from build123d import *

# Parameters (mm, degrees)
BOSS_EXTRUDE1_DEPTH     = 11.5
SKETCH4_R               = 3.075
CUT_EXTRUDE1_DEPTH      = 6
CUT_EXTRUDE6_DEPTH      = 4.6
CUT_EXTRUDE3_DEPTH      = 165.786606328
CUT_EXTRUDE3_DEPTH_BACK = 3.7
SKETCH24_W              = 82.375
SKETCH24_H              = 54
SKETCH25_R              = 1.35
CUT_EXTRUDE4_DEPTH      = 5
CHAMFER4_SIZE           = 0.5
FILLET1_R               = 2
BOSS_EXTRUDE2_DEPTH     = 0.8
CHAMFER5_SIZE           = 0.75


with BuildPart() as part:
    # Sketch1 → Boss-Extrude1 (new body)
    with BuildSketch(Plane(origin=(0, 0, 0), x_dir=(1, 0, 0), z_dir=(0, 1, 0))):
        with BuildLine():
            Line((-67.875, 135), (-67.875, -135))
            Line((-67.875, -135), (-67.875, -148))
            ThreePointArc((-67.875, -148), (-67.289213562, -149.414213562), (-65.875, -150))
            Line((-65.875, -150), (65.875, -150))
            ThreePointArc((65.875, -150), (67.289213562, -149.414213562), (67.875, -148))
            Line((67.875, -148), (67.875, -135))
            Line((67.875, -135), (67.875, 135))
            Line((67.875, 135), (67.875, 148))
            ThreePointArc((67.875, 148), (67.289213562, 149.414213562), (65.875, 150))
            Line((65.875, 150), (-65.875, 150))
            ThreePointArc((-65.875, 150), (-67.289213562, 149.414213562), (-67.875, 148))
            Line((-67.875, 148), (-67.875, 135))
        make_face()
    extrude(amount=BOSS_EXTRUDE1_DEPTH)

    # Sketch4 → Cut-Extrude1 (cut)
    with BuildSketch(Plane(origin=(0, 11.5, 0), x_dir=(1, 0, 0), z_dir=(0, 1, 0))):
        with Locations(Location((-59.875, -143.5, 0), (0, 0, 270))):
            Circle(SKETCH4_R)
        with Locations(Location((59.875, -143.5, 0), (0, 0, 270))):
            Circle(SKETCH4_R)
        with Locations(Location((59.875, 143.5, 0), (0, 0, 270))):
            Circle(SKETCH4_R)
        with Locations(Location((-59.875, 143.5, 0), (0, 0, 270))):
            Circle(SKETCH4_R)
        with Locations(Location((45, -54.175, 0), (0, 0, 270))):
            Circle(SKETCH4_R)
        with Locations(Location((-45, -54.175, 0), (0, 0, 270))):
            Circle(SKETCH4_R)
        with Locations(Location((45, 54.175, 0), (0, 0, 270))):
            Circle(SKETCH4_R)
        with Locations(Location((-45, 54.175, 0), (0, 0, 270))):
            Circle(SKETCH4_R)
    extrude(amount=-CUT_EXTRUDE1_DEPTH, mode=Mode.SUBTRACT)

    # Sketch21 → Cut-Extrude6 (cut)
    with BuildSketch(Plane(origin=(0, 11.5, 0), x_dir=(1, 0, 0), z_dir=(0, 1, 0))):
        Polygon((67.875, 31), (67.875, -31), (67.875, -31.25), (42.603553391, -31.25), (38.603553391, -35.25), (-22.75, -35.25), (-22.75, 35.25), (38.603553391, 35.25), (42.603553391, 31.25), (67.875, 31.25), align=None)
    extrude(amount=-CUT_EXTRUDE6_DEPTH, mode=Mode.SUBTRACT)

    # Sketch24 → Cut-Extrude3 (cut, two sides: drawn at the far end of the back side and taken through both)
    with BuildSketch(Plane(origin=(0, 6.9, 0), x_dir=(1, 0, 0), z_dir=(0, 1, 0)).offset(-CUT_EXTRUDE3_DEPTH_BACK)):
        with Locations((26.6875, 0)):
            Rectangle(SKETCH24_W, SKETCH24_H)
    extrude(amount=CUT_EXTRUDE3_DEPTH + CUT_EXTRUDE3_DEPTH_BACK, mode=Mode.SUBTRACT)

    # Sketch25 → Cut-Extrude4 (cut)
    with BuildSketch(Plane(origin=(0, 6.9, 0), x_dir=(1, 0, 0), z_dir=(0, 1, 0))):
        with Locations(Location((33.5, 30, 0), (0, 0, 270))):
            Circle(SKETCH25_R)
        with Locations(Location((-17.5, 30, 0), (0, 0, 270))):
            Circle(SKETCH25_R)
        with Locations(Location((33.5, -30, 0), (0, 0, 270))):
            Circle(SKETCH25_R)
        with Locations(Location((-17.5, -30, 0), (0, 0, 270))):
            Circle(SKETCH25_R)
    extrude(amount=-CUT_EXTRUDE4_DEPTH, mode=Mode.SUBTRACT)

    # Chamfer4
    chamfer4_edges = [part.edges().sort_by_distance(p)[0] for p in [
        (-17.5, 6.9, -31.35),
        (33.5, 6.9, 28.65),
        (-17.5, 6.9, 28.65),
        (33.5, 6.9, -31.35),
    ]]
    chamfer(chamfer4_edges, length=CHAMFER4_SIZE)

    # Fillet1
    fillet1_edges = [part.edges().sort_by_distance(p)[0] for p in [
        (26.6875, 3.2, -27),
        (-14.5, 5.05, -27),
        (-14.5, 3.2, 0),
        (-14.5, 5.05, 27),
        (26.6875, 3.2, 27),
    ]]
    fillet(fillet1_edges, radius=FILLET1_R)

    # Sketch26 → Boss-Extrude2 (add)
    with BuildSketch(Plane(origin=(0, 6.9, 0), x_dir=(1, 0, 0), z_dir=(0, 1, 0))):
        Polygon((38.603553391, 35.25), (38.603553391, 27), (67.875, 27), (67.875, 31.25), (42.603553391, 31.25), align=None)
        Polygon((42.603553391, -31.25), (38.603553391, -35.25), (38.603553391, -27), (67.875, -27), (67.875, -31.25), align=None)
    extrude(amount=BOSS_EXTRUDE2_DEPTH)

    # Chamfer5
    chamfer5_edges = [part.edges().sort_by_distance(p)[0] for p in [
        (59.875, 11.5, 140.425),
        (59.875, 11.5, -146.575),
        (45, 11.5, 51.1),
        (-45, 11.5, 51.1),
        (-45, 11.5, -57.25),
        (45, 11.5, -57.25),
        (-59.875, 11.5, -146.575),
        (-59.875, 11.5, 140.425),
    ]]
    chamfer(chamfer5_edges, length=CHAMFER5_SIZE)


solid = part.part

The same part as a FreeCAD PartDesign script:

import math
import FreeCAD as App
import Part
import Sketcher

V = App.Vector


def edges_at(feature, points):
    """Names of the edges that pass closest to the given points."""
    edges = feature.Shape.Edges
    near = lambda p: min(range(len(edges)), key=lambda i: edges[i].distToShape(Part.Vertex(*p))[0])
    return sorted({f"Edge{near(p) + 1}" for p in points})


def add_polygon(sketch, points):
    """Adds a closed chain of lines whose ends are joined by coincident constraints."""
    first, n = sketch.GeometryCount, len(points)
    for a, b in zip(points, points[1:] + points[:1]):
        sketch.addGeometry(Part.LineSegment(App.Vector(*a, 0), App.Vector(*b, 0)), False)
    for i in range(n):
        sketch.addConstraint(Sketcher.Constraint("Coincident", first + i, 2, first + (i + 1) % n, 1))

doc = App.newDocument("Part")
params = doc.addObject("Spreadsheet::Sheet", "Params")
for row, (alias, value) in enumerate([
    ("sketch1_radius", "2 mm"),
    ("sketch1_height", "296 mm"),
    ("sketch1_width", "131.75 mm"),
    ("pad1_length", "11.5 mm"),
    ("sketch2_diameter", "6.15 mm"),
    ("pocket1_length", "6 mm"),
    ("sketch3_height", "62.5 mm"),
    ("sketch3_height2", "70.5 mm"),
    ("pocket2_length", "4.6 mm"),
    ("sketch4_height", "54 mm"),
    ("pocket3_length", "165.786606 mm"),
    ("pocket3_length2", "3.7 mm"),
    ("sketch5_diameter", "2.7 mm"),
    ("pocket4_length", "5 mm"),
    ("chamfer_size", "0.5 mm"),
    ("fillet_radius", "2 mm"),
    ("sketch6_height", "8.25 mm"),
    ("pad2_length", "0.8 mm"),
    ("chamfer2_size", "0.75 mm"),
], start=1):
    params.set(f"A{row}", alias)
    params.set(f"B{row}", "=" + value)
    params.setAlias(f"B{row}", alias)

body = doc.addObject("PartDesign::Body", "Body")

sketch1 = body.newObject("Sketcher::SketchObject", "Sketch")
sketch1.AttachmentSupport = (doc.getObject("XZ_Plane"), [""])
sketch1.MapMode = "FlatFace"
sketch1.addGeometry([
    Part.ArcOfCircle(Part.Circle(V(-65.9, 148, 0), V(0, 0, 1), 2), math.radians(90), math.radians(180)),
    Part.LineSegment(V(-65.9, 150, 0), V(65.9, 150, 0)),
    Part.ArcOfCircle(Part.Circle(V(65.9, 148, 0), V(0, 0, 1), 2), math.radians(0), math.radians(90)),
    Part.LineSegment(V(67.9, 148, 0), V(67.9, -148, 0)),
    Part.ArcOfCircle(Part.Circle(V(65.9, -148, 0), V(0, 0, 1), 2), math.radians(-90), math.radians(0)),
    Part.LineSegment(V(65.9, -150, 0), V(-65.9, -150, 0)),
    Part.ArcOfCircle(Part.Circle(V(-65.9, -148, 0), V(0, 0, 1), 2), math.radians(-180), math.radians(-90)),
    Part.LineSegment(V(-67.9, -148, 0), V(-67.9, 148, 0)),
], False)
sketch1.addConstraint([
    Sketcher.Constraint("Tangent", 0, 1, 1, 1),
    Sketcher.Constraint("Tangent", 1, 2, 2, 2),
    Sketcher.Constraint("Tangent", 2, 1, 3, 1),
    Sketcher.Constraint("Tangent", 3, 2, 4, 2),
    Sketcher.Constraint("Tangent", 4, 1, 5, 1),
    Sketcher.Constraint("Tangent", 5, 2, 6, 2),
    Sketcher.Constraint("Tangent", 6, 1, 7, 1),
    Sketcher.Constraint("Tangent", 7, 2, 0, 2),
    Sketcher.Constraint("Horizontal", 1),
    Sketcher.Constraint("Vertical", 3),
    Sketcher.Constraint("Horizontal", 5),
    Sketcher.Constraint("Vertical", 7),
    Sketcher.Constraint("Equal", 0, 2),
    Sketcher.Constraint("Equal", 2, 4),
    Sketcher.Constraint("Equal", 4, 6),
    Sketcher.Constraint("Symmetric", 0, 3, 4, 3, -1, 1),
    Sketcher.Constraint("Radius", 0, 2.0),
    Sketcher.Constraint("DistanceY", 3, 2, 3, 1, 296.0),
    Sketcher.Constraint("DistanceX", 1, 1, 1, 2, 131.75),
])
sketch1.setExpression("Constraints[16]", "Params.sketch1_radius")
sketch1.setExpression("Constraints[17]", "Params.sketch1_height")
sketch1.setExpression("Constraints[18]", "Params.sketch1_width")
pad1 = body.newObject("PartDesign::Pad", "Pad")
pad1.Profile = sketch1
pad1.setExpression("Length", "Params.pad1_length")
pad1.Reversed = True

sketch2 = body.newObject("Sketcher::SketchObject", "Sketch001")
sketch2.AttachmentSupport = (doc.getObject("XZ_Plane"), [""])
sketch2.MapMode = "FlatFace"
sketch2.AttachmentOffset = App.Placement(V(0, 0, -11.5), App.Rotation())
sketch2.addGeometry([
    Part.Circle(V(-59.9, 143.5, 0), V(0, 0, 1), 3.1),
    Part.Circle(V(59.9, 143.5, 0), V(0, 0, 1), 3.1),
    Part.Circle(V(59.9, -143.5, 0), V(0, 0, 1), 3.1),
    Part.Circle(V(-59.9, -143.5, 0), V(0, 0, 1), 3.1),
    Part.Circle(V(45, 54.2, 0), V(0, 0, 1), 3.1),
    Part.Circle(V(-45, 54.2, 0), V(0, 0, 1), 3.1),
    Part.Circle(V(45, -54.2, 0), V(0, 0, 1), 3.1),
    Part.Circle(V(-45, -54.2, 0), V(0, 0, 1), 3.1),
], False)
sketch2.addConstraint([
    Sketcher.Constraint("Equal", 0, 1),
    Sketcher.Constraint("Equal", 1, 2),
    Sketcher.Constraint("Equal", 2, 3),
    Sketcher.Constraint("Equal", 3, 4),
    Sketcher.Constraint("Equal", 4, 5),
    Sketcher.Constraint("Equal", 5, 6),
    Sketcher.Constraint("Equal", 6, 7),
    Sketcher.Constraint("Symmetric", 0, 3, 2, 3, -1, 1),
    Sketcher.Constraint("Symmetric", 1, 3, 3, 3, -1, 1),
    Sketcher.Constraint("Symmetric", 5, 3, 6, 3, -1, 1),
    Sketcher.Constraint("Symmetric", 4, 3, 7, 3, -1, 1),
    Sketcher.Constraint("Symmetric", 0, 3, 1, 3, -2),
    Sketcher.Constraint("Symmetric", 4, 3, 5, 3, -2),
    Sketcher.Constraint("Diameter", 0, 6.15),
    Sketcher.Constraint("DistanceX", -1, 1, 4, 3, 45.0),
    Sketcher.Constraint("DistanceY", 2, 3, 1, 3, 287.0),
    Sketcher.Constraint("DistanceX", 0, 3, 1, 3, 119.75),
    Sketcher.Constraint("DistanceY", 6, 3, 4, 3, 108.35),
])
sketch2.setExpression("Constraints[13]", "Params.sketch2_diameter")
pocket1 = body.newObject("PartDesign::Pocket", "Pocket")
pocket1.Profile = sketch2
pocket1.setExpression("Length", "Params.pocket1_length")
pocket1.Reversed = True

sketch3 = body.newObject("Sketcher::SketchObject", "Sketch002")
sketch3.AttachmentSupport = (doc.getObject("XZ_Plane"), [""])
sketch3.MapMode = "FlatFace"
sketch3.AttachmentOffset = App.Placement(V(0, 0, -11.5), App.Rotation())
add_polygon(sketch3, [(68, 31), (68, -31), (43, -31), (39, -35), (-23, -35), (-23, 35), (39, 35), (43, 31)])
sketch3.addConstraint([
    Sketcher.Constraint("Vertical", 0),
    Sketcher.Constraint("Horizontal", 1),
    Sketcher.Constraint("Horizontal", 3),
    Sketcher.Constraint("Vertical", 4),
    Sketcher.Constraint("Horizontal", 5),
    Sketcher.Constraint("Horizontal", 7),
    Sketcher.Constraint("Symmetric", 2, 2, 5, 2, -1),
    Sketcher.Constraint("Symmetric", 1, 2, 6, 2, -1),
    Sketcher.Constraint("Perpendicular", 2, 6),
    Sketcher.Constraint("DistanceY", 0, 2, 0, 1, 62.5),
    Sketcher.Constraint("DistanceY", 4, 1, 4, 2, 70.5),
    Sketcher.Constraint("DistanceX", 3, 2, -1, 1, 22.75),
    Sketcher.Constraint("DistanceX", -1, 1, 0, 2, 67.875),
    Sketcher.Constraint("DistanceX", 1, 2, 1, 1, 25.271447),
])
sketch3.setExpression("Constraints[17]", "Params.sketch3_height")
sketch3.setExpression("Constraints[18]", "Params.sketch3_height2")
pocket2 = body.newObject("PartDesign::Pocket", "Pocket001")
pocket2.Profile = sketch3
pocket2.setExpression("Length", "Params.pocket2_length")
pocket2.Reversed = True

sketch4 = body.newObject("Sketcher::SketchObject", "Sketch003")
sketch4.AttachmentSupport = (doc.getObject("XZ_Plane"), [""])
sketch4.MapMode = "FlatFace"
sketch4.AttachmentOffset = App.Placement(V(0, 0, -6.9), App.Rotation())
add_polygon(sketch4, [(-14, -27), (-14, 27), (68, 27), (68, -27)])
sketch4.addConstraint([
    Sketcher.Constraint("Vertical", 0),
    Sketcher.Constraint("Horizontal", 1),
    Sketcher.Constraint("Vertical", 2),
    Sketcher.Constraint("Horizontal", 3),
    Sketcher.Constraint("DistanceY", 0, 1, 0, 2, 54.0),
    Sketcher.Constraint("DistanceY", -1, 1, 0, 2, 27.0),
    Sketcher.Constraint("DistanceX", 0, 2, -1, 1, 14.5),
    Sketcher.Constraint("DistanceX", 1, 1, 1, 2, 82.375),
])
sketch4.setExpression("Constraints[8]", "Params.sketch4_height")
pocket3 = body.newObject("PartDesign::Pocket", "Pocket002")
pocket3.Profile = sketch4
pocket3.Type = "TwoLengths"
pocket3.setExpression("Length", "Params.pocket3_length")
pocket3.setExpression("Length2", "Params.pocket3_length2")

sketch5 = body.newObject("Sketcher::SketchObject", "Sketch004")
sketch5.AttachmentSupport = (doc.getObject("XZ_Plane"), [""])
sketch5.MapMode = "FlatFace"
sketch5.AttachmentOffset = App.Placement(V(0, 0, -6.9), App.Rotation())
sketch5.addGeometry([
    Part.Circle(V(33.5, -30, 0), V(0, 0, 1), 1.4),
    Part.Circle(V(-17.5, -30, 0), V(0, 0, 1), 1.4),
    Part.Circle(V(33.5, 30, 0), V(0, 0, 1), 1.4),
    Part.Circle(V(-17.5, 30, 0), V(0, 0, 1), 1.4),
], False)
sketch5.addConstraint([
    Sketcher.Constraint("Equal", 0, 1),
    Sketcher.Constraint("Equal", 1, 2),
    Sketcher.Constraint("Equal", 2, 3),
    Sketcher.Constraint("Symmetric", 0, 3, 2, 3, -1),
    Sketcher.Constraint("Symmetric", 1, 3, 3, 3, -1),
    Sketcher.Constraint("Horizontal", 0, 3, 1, 3),
    Sketcher.Constraint("Diameter", 0, 2.7),
    Sketcher.Constraint("DistanceY", 0, 3, -1, 1, 30.0),
    Sketcher.Constraint("DistanceX", 1, 3, 0, 3, 51.0),
    Sketcher.Constraint("DistanceX", -1, 1, 0, 3, 33.5),
])
sketch5.setExpression("Constraints[6]", "Params.sketch5_diameter")
pocket4 = body.newObject("PartDesign::Pocket", "Pocket003")
pocket4.Profile = sketch5
pocket4.setExpression("Length", "Params.pocket4_length")
pocket4.Reversed = True
doc.recompute()

chamfer = body.newObject("PartDesign::Chamfer", "Chamfer")
chamfer.Base = (pocket4, edges_at(pocket4, [
    (-17.5, 6.9, -31.35),
    (33.5, 6.9, 28.65),
    (-17.5, 6.9, 28.65),
    (33.5, 6.9, -31.35),
]))
chamfer.setExpression("Size", "Params.chamfer_size")
doc.recompute()

fillet = body.newObject("PartDesign::Fillet", "Fillet")
fillet.Base = (chamfer, edges_at(chamfer, [
    (26.688, 3.2, -27),
    (-14.5, 5.05, -27),
    (-14.5, 3.2, 0),
    (-14.5, 5.05, 27),
    (26.688, 3.2, 27),
]))
fillet.setExpression("Radius", "Params.fillet_radius")

sketch6 = body.newObject("Sketcher::SketchObject", "Sketch005")
sketch6.AttachmentSupport = (doc.getObject("XZ_Plane"), [""])
sketch6.MapMode = "FlatFace"
sketch6.AttachmentOffset = App.Placement(V(0, 0, -6.9), App.Rotation())
add_polygon(sketch6, [(38.6, -35.2), (38.6, -27), (67.9, -27), (67.9, -31.2), (42.6, -31.2)])
add_polygon(sketch6, [(38.6, 35.2), (42.6, 31.2), (67.9, 31.2), (67.9, 27), (38.6, 27)])
sketch6.addConstraint([
    Sketcher.Constraint("Vertical", 0),
    Sketcher.Constraint("Horizontal", 1),
    Sketcher.Constraint("Vertical", 2),
    Sketcher.Constraint("Horizontal", 3),
    Sketcher.Constraint("Horizontal", 6),
    Sketcher.Constraint("Vertical", 7),
    Sketcher.Constraint("Horizontal", 8),
    Sketcher.Constraint("Vertical", 9),
    Sketcher.Constraint("Symmetric", 3, 2, 5, 2, -1),
    Sketcher.Constraint("Symmetric", 1, 2, 7, 2, -1),
    Sketcher.Constraint("Symmetric", 4, 2, 9, 2, -1),
    Sketcher.Constraint("Perpendicular", 4, 5),
    Sketcher.Constraint("DistanceY", 0, 2, -1, 1, 27.0),
    Sketcher.Constraint("DistanceX", 0, 2, 3, 2, 4.0),
    Sketcher.Constraint("DistanceY", 0, 1, 0, 2, 8.25),
    Sketcher.Constraint("DistanceX", -1, 1, 1, 2, 67.875),
    Sketcher.Constraint("DistanceX", 1, 1, 1, 2, 29.271447),
])
sketch6.setExpression("Constraints[24]", "Params.sketch6_height")
pad2 = body.newObject("PartDesign::Pad", "Pad001")
pad2.Profile = sketch6
pad2.setExpression("Length", "Params.pad2_length")
pad2.Reversed = True
doc.recompute()

chamfer2 = body.newObject("PartDesign::Chamfer", "Chamfer001")
chamfer2.Base = (pad2, edges_at(pad2, [
    (59.875, 11.5, 140.425),
    (59.875, 11.5, -146.575),
    (45, 11.5, 51.1),
    (-45, 11.5, 51.1),
    (-45, 11.5, -57.25),
    (45, 11.5, -57.25),
    (-59.875, 11.5, -146.575),
    (-59.875, 11.5, 140.425),
]))
chamfer2.setExpression("Size", "Params.chamfer2_size")

doc.recompute()
